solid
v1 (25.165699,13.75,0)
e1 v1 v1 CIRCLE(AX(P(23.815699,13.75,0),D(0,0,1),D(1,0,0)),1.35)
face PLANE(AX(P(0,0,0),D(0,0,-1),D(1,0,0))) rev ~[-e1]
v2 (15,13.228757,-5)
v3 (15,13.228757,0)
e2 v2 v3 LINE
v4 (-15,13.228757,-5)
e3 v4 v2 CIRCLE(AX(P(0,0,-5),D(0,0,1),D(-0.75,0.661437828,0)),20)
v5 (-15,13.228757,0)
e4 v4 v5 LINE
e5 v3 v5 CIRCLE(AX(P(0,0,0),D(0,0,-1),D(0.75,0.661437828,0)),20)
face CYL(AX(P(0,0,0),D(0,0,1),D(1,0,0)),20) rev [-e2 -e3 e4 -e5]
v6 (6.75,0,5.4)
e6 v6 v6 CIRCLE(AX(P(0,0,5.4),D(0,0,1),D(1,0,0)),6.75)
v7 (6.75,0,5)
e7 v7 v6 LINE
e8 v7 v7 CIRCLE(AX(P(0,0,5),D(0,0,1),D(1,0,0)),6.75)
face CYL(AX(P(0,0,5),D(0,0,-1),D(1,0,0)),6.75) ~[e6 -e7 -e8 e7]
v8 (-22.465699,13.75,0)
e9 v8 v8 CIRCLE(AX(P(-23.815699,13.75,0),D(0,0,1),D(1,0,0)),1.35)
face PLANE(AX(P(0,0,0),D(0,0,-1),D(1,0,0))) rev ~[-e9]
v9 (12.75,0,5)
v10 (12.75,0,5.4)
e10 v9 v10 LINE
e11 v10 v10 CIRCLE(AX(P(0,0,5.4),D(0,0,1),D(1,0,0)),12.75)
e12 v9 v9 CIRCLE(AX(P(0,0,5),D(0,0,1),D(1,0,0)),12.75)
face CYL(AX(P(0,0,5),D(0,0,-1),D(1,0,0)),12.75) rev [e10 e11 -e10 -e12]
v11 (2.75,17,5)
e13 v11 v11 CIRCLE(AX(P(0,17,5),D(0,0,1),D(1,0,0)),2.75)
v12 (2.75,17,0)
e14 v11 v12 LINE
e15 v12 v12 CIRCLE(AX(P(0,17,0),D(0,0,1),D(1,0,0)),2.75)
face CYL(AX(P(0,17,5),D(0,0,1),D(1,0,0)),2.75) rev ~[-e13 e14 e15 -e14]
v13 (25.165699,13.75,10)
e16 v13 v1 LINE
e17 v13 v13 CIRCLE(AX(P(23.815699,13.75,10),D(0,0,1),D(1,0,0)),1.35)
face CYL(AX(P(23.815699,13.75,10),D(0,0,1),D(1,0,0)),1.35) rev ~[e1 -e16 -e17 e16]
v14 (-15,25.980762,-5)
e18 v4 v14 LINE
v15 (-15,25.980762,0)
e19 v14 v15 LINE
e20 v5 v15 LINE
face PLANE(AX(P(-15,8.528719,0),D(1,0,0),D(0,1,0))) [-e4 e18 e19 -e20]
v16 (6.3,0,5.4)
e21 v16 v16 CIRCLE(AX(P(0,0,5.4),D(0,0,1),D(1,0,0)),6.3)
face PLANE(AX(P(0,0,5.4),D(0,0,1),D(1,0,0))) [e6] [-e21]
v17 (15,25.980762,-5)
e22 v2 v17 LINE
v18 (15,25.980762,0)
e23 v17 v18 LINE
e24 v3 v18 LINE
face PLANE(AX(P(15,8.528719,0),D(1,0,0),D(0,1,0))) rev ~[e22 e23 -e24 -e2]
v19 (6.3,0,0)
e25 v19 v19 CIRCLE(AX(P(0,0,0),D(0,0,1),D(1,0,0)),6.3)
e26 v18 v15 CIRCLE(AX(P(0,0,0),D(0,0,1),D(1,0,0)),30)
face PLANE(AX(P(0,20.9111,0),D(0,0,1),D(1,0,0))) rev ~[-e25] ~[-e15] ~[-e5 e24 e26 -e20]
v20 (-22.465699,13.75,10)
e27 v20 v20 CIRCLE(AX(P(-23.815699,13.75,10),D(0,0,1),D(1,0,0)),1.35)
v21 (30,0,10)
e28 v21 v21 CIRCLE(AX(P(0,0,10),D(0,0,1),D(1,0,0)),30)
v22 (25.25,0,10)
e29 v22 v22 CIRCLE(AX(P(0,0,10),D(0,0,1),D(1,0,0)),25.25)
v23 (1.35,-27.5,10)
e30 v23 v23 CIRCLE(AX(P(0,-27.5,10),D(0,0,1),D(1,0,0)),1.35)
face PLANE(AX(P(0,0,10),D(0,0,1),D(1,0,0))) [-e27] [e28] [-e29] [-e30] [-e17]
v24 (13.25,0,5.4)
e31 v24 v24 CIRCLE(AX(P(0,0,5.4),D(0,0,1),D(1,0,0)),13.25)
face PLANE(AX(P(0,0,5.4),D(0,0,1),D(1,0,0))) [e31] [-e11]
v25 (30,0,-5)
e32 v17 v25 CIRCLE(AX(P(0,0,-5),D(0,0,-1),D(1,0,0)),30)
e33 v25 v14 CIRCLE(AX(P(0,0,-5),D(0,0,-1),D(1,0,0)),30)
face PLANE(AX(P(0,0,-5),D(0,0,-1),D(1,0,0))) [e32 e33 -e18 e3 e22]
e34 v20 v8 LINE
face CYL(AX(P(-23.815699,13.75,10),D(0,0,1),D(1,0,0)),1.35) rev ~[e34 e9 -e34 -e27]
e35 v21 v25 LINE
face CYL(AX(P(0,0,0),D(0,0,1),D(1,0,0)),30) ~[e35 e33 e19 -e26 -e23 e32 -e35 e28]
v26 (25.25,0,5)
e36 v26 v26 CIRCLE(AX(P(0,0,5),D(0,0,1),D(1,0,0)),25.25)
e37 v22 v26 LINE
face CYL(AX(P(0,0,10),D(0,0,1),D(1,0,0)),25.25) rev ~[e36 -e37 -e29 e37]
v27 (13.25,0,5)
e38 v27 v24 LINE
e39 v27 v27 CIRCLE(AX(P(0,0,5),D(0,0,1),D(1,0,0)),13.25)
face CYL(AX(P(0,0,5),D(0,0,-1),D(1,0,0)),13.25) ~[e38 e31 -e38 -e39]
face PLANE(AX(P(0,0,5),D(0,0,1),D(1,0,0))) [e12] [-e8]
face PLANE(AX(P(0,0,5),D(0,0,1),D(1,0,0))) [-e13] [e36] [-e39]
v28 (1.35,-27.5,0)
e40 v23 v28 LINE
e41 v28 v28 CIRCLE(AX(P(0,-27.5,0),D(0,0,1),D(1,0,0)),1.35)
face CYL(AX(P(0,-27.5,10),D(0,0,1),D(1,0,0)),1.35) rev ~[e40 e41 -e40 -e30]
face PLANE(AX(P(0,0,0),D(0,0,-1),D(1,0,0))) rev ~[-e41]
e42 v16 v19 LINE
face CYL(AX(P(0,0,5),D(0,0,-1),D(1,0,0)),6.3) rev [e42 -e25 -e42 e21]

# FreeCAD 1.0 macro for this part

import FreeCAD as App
import Part
import Sketcher
from FreeCAD import Vector

doc = App.newDocument("Part")
params = doc.addObject("Spreadsheet::Sheet", "Params")
for row, (alias, value) in enumerate([
    ("sketch1_diameter", "60 mm"),
    ("pad1_length", "10 mm"),
    ("sketch2_diameter", "50.5 mm"),
    ("pocket1_length", "5 mm"),
    ("sketch3_diameter", "12.6 mm"),
    ("sketch4_diameter", "2.7 mm"),
    ("sketch5_diameter", "5.5 mm"),
    ("sketch6_diameter", "60 mm"),
    ("sketch6_diameter2", "40 mm"),
    ("pad2_length", "5 mm"),
    ("sketch7_width", "30 mm"),
    ("pocket5_length", "5 mm"),
    ("sketch8_diameter", "26.5 mm"),
    ("sketch8_diameter2", "25.5 mm"),
    ("sketch8_diameter3", "13.5 mm"),
    ("sketch8_diameter4", "12.6 mm"),
    ("pad3_length", "0.4 mm"),
], start=1):
    params.set(f"A{row}", alias)
    params.set(f"B{row}", "=" + value)
    params.setAlias(f"B{row}", alias)

body = doc.addObject("PartDesign::Body", "Body")

# Sketch on XY plane
sketch1 = doc.addObject("Sketcher::SketchObject", "Sketch")
body.addObject(sketch1)
sketch1.AttachmentSupport = (doc.XY_Plane, [""])
sketch1.MapMode = "FlatFace"
sketch1.addGeometry(Part.Circle(Vector(0, 0, 0), Vector(0, 0, 1), 30), False)
sketch1.addConstraint([
    Sketcher.Constraint("Coincident", 0, 3, -1, 1),
    Sketcher.Constraint("Diameter", 0, 60.0),
])
sketch1.setExpression("Constraints[1]", "Params.sketch1_diameter")
pad1 = doc.addObject("PartDesign::Pad", "Pad")
body.addObject(pad1)
pad1.Profile = sketch1
pad1.setExpression("Length", "Params.pad1_length")

# Sketch on XY plane
sketch2 = doc.addObject("Sketcher::SketchObject", "Sketch001")
body.addObject(sketch2)
sketch2.AttachmentSupport = (doc.XY_Plane, [""])
sketch2.MapMode = "FlatFace"
sketch2.AttachmentOffset = App.Placement(Vector(0, 0, 10), App.Rotation())
sketch2.addGeometry(Part.Circle(Vector(0, 0, 0), Vector(0, 0, 1), 25.25), False)
sketch2.addConstraint([
    Sketcher.Constraint("Coincident", 0, 3, -1, 1),
    Sketcher.Constraint("Diameter", 0, 50.5),
])
sketch2.setExpression("Constraints[1]", "Params.sketch2_diameter")
pocket1 = doc.addObject("PartDesign::Pocket", "Pocket")
body.addObject(pocket1)
pocket1.Profile = sketch2
pocket1.setExpression("Length", "Params.pocket1_length")

# Sketch on XY plane
sketch3 = doc.addObject("Sketcher::SketchObject", "Sketch002")
body.addObject(sketch3)
sketch3.AttachmentSupport = (doc.XY_Plane, [""])
sketch3.MapMode = "FlatFace"
sketch3.addGeometry(Part.Circle(Vector(0, 0, 0), Vector(0, 0, 1), 6.3), False)
sketch3.addConstraint([
    Sketcher.Constraint("Coincident", 0, 3, -1, 1),
    Sketcher.Constraint("Diameter", 0, 12.6),
])
sketch3.setExpression("Constraints[1]", "Params.sketch3_diameter")
pocket2 = doc.addObject("PartDesign::Pocket", "Pocket001")
body.addObject(pocket2)
pocket2.Profile = sketch3
pocket2.Type = "ThroughAll"
pocket2.Reversed = True

# Sketch on XY plane
sketch4 = doc.addObject("Sketcher::SketchObject", "Sketch003")
body.addObject(sketch4)
sketch4.AttachmentSupport = (doc.XY_Plane, [""])
sketch4.MapMode = "FlatFace"
sketch4.AttachmentOffset = App.Placement(Vector(0, 0, 10), App.Rotation())
sketch4.addGeometry([
    Part.Circle(Vector(23.815699, 13.75, 0), Vector(0, 0, 1), 1.35),
    Part.Circle(Vector(0, -27.5, 0), Vector(0, 0, 1), 1.35),
    Part.Circle(Vector(-23.815699, 13.75, 0), Vector(0, 0, 1), 1.35),
], False)
sketch4.addConstraint([
    Sketcher.Constraint("Equal", 0, 1),
    Sketcher.Constraint("Equal", 1, 2),
    Sketcher.Constraint("Symmetric", 0, 3, 2, 3, -2),
    Sketcher.Constraint("PointOnObject", 1, 3, -2),
    Sketcher.Constraint("Diameter", 0, 2.7),
    Sketcher.Constraint("DistanceY", 1, 3, -1, 1, 27.5),
    Sketcher.Constraint("DistanceY", -1, 1, 0, 3, 13.75),
    Sketcher.Constraint("DistanceX", -1, 1, 0, 3, 23.815699),
])
sketch4.setExpression("Constraints[4]", "Params.sketch4_diameter")
pocket3 = doc.addObject("PartDesign::Pocket", "Pocket002")
body.addObject(pocket3)
pocket3.Profile = sketch4
pocket3.Type = "ThroughAll"

# Sketch on XY plane
sketch5 = doc.addObject("Sketcher::SketchObject", "Sketch004")
body.addObject(sketch5)
sketch5.AttachmentSupport = (doc.XY_Plane, [""])
sketch5.MapMode = "FlatFace"
sketch5.AttachmentOffset = App.Placement(Vector(0, 0, 5), App.Rotation())
sketch5.addGeometry(Part.Circle(Vector(0, 17, 0), Vector(0, 0, 1), 2.75), False)
sketch5.addConstraint([
    Sketcher.Constraint("PointOnObject", 0, 3, -2),
    Sketcher.Constraint("Diameter", 0, 5.5),
    Sketcher.Constraint("DistanceY", -1, 1, 0, 3, 17.0),
])
sketch5.setExpression("Constraints[1]", "Params.sketch5_diameter")
pocket4 = doc.addObject("PartDesign::Pocket", "Pocket003")
body.addObject(pocket4)
pocket4.Profile = sketch5
pocket4.Type = "ThroughAll"

# Sketch on XY plane
sketch6 = doc.addObject("Sketcher::SketchObject", "Sketch005")
body.addObject(sketch6)
sketch6.AttachmentSupport = (doc.XY_Plane, [""])
sketch6.MapMode = "FlatFace"
sketch6.addGeometry([
    Part.Circle(Vector(0, 0, 0), Vector(0, 0, 1), 30),
    Part.Circle(Vector(0, 0, 0), Vector(0, 0, 1), 20),
], False)
sketch6.addConstraint([
    Sketcher.Constraint("Coincident", 0, 3, -1, 1),
    Sketcher.Constraint("Coincident", 1, 3, -1, 1),
    Sketcher.Constraint("Diameter", 0, 60.0),
    Sketcher.Constraint("Diameter", 1, 40.0),
])
sketch6.setExpression("Constraints[2]", "Params.sketch6_diameter")
sketch6.setExpression("Constraints[3]", "Params.sketch6_diameter2")
pad2 = doc.addObject("PartDesign::Pad", "Pad001")
body.addObject(pad2)
pad2.Profile = sketch6
pad2.setExpression("Length", "Params.pad2_length")
pad2.Reversed = True

# Sketch on XY plane
sketch7 = doc.addObject("Sketcher::SketchObject", "Sketch006")
body.addObject(sketch7)
sketch7.AttachmentSupport = (doc.XY_Plane, [""])
sketch7.MapMode = "FlatFace"
sketch7.addGeometry([
    Part.LineSegment(Vector(-15, 33.293482, 0), Vector(-15, 8.528719, 0)),
    Part.LineSegment(Vector(-15, 8.528719, 0), Vector(15, 8.528719, 0)),
    Part.LineSegment(Vector(15, 8.528719, 0), Vector(15, 33.293482, 0)),
    Part.LineSegment(Vector(15, 33.293482, 0), Vector(-15, 33.293482, 0)),
], False)
sketch7.addConstraint([
    Sketcher.Constraint("Coincident", 0, 2, 1, 1),
    Sketcher.Constraint("Coincident", 1, 2, 2, 1),
    Sketcher.Constraint("Coincident", 2, 2, 3, 1),
    Sketcher.Constraint("Coincident", 3, 2, 0, 1),
    Sketcher.Constraint("Vertical", 0),
    Sketcher.Constraint("Horizontal", 1),
    Sketcher.Constraint("Vertical", 2),
    Sketcher.Constraint("Horizontal", 3),
    Sketcher.Constraint("DistanceX", 1, 1, 1, 2, 30.0),
    Sketcher.Constraint("DistanceX", 0, 2, -1, 1, 15.0),
    Sketcher.Constraint("DistanceY", 0, 2, 0, 1, 24.764763),
    Sketcher.Constraint("DistanceY", -1, 1, 0, 2, 8.528719),
])
sketch7.setExpression("Constraints[8]", "Params.sketch7_width")
pocket5 = doc.addObject("PartDesign::Pocket", "Pocket004")
body.addObject(pocket5)
pocket5.Profile = sketch7
pocket5.setExpression("Length", "Params.pocket5_length")

# Sketch on XY plane
sketch8 = doc.addObject("Sketcher::SketchObject", "Sketch007")
body.addObject(sketch8)
sketch8.AttachmentSupport = (doc.XY_Plane, [""])
sketch8.MapMode = "FlatFace"
sketch8.AttachmentOffset = App.Placement(Vector(0, 0, 5), App.Rotation())
sketch8.addGeometry([
    Part.Circle(Vector(0, 0, 0), Vector(0, 0, 1), 13.25),
    Part.Circle(Vector(0, 0, 0), Vector(0, 0, 1), 12.75),
    Part.Circle(Vector(0, 0, 0), Vector(0, 0, 1), 6.75),
    Part.Circle(Vector(0, 0, 0), Vector(0, 0, 1), 6.3),
], False)
sketch8.addConstraint([
    Sketcher.Constraint("Coincident", 0, 3, -1, 1),
    Sketcher.Constraint("Coincident", 1, 3, -1, 1),
    Sketcher.Constraint("Coincident", 2, 3, -1, 1),
    Sketcher.Constraint("Coincident", 3, 3, -1, 1),
    Sketcher.Constraint("Diameter", 0, 26.5),
    Sketcher.Constraint("Diameter", 1, 25.5),
    Sketcher.Constraint("Diameter", 2, 13.5),
    Sketcher.Constraint("Diameter", 3, 12.6),
])
sketch8.setExpression("Constraints[4]", "Params.sketch8_diameter")
sketch8.setExpression("Constraints[5]", "Params.sketch8_diameter2")
sketch8.setExpression("Constraints[6]", "Params.sketch8_diameter3")
sketch8.setExpression("Constraints[7]", "Params.sketch8_diameter4")
pad3 = doc.addObject("PartDesign::Pad", "Pad002")
body.addObject(pad3)
pad3.Profile = sketch8
pad3.setExpression("Length", "Params.pad3_length")

doc.recompute()
